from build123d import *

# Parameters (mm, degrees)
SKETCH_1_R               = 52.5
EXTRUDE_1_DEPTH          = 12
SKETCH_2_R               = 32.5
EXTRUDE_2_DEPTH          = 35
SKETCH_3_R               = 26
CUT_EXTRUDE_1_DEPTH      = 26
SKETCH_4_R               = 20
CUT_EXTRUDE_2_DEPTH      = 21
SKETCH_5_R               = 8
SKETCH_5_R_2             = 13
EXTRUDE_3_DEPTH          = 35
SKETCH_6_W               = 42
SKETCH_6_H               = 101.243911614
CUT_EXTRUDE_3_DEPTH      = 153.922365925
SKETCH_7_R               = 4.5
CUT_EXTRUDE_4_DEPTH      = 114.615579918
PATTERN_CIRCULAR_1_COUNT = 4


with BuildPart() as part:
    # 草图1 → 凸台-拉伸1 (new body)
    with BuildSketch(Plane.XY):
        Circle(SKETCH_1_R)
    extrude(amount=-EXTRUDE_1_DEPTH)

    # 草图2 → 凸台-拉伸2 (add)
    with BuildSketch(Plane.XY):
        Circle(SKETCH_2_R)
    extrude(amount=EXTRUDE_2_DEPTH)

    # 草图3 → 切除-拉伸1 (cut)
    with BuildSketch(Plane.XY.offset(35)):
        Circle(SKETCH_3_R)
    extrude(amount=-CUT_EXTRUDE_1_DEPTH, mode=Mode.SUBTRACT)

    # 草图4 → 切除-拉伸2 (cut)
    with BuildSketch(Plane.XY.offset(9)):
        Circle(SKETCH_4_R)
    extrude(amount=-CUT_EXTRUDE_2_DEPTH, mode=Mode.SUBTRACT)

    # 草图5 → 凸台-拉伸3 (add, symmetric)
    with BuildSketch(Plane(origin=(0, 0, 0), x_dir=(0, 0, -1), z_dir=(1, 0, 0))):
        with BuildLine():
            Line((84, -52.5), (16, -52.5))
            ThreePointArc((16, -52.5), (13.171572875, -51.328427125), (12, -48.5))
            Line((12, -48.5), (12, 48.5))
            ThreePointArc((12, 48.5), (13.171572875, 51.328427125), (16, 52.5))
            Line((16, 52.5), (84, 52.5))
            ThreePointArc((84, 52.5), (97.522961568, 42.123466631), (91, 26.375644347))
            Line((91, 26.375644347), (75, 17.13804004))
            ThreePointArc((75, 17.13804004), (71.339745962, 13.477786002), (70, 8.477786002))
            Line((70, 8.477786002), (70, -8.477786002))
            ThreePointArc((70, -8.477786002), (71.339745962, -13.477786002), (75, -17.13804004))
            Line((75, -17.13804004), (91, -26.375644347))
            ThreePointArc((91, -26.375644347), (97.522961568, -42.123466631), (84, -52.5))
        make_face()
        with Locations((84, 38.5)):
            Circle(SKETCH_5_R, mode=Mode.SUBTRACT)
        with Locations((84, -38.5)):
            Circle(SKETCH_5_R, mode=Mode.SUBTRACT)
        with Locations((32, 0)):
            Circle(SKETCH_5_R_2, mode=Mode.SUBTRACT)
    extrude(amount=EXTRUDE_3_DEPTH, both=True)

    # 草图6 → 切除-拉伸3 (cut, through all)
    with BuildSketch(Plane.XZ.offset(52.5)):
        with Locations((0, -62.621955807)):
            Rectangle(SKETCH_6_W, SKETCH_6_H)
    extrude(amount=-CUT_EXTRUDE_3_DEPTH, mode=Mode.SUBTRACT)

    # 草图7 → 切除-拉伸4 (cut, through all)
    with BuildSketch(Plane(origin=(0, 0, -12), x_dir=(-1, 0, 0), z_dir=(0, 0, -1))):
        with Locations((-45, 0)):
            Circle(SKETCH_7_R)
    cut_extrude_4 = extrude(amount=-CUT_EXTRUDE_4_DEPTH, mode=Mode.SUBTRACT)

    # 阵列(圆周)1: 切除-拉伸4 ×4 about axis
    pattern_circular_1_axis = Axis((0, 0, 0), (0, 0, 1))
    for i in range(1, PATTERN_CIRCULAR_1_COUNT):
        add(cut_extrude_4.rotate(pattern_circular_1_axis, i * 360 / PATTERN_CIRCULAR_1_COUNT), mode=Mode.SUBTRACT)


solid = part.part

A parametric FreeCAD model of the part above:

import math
import FreeCAD as App
import Part
import Sketcher

V = App.Vector
Q = App.Units.Quantity

doc = App.newDocument("Part")
params = doc.addObject("Spreadsheet::Sheet", "Params")
for row, (alias, value) in enumerate([
    ("sketch1_diameter", "105 mm"),
    ("pad1_length", "12 mm"),
    ("sketch2_diameter", "65 mm"),
    ("pad2_length", "35 mm"),
    ("sketch3_diameter", "52 mm"),
    ("pocket1_length", "26 mm"),
    ("sketch4_diameter", "40 mm"),
    ("pocket2_length", "21 mm"),
    ("sketch5_diameter", "16 mm"),
    ("sketch5_diameter2", "26 mm"),
    ("sketch5_radius", "14 mm"),
    ("sketch5_radius2", "10 mm"),
    ("sketch5_radius3", "4 mm"),
    ("pad3_length", "70 mm"),
    ("sketch6_width", "42 mm"),
    ("sketch7_diameter", "9 mm"),
], start=1):
    params.set(f"A{row}", alias)
    params.set(f"B{row}", "=" + value)
    params.setAlias(f"B{row}", alias)

body = doc.addObject("PartDesign::Body", "Body")

# Sketch on XY plane
sketch1 = body.newObject("Sketcher::SketchObject", "Sketch")
sketch1.AttachmentSupport = (doc.getObject("XY_Plane"), [""])
sketch1.MapMode = "FlatFace"
sketch1.addGeometry(Part.Circle(V(0, 0, 0), V(0, 0, 1), 52.5), False)
sketch1.addConstraint([
    Sketcher.Constraint("Coincident", 0, 3, -1, 1),
    Sketcher.Constraint("Diameter", 0, Q("105 mm")),
])
sketch1.setExpression("Constraints[1]", "Params.sketch1_diameter")
pad1 = body.newObject("PartDesign::Pad", "Pad")
pad1.Profile = sketch1
pad1.setExpression("Length", "Params.pad1_length")
pad1.Reversed = True

# Sketch on XY plane
sketch2 = body.newObject("Sketcher::SketchObject", "Sketch001")
sketch2.AttachmentSupport = (doc.getObject("XY_Plane"), [""])
sketch2.MapMode = "FlatFace"
sketch2.addGeometry(Part.Circle(V(0, 0, 0), V(0, 0, 1), 32.5), False)
sketch2.addConstraint([
    Sketcher.Constraint("Coincident", 0, 3, -1, 1),
    Sketcher.Constraint("Diameter", 0, Q("65 mm")),
])
sketch2.setExpression("Constraints[1]", "Params.sketch2_diameter")
pad2 = body.newObject("PartDesign::Pad", "Pad001")
pad2.Profile = sketch2
pad2.setExpression("Length", "Params.pad2_length")

# Sketch on XY plane
sketch3 = body.newObject("Sketcher::SketchObject", "Sketch002")
sketch3.AttachmentSupport = (doc.getObject("XY_Plane"), [""])
sketch3.MapMode = "FlatFace"
sketch3.AttachmentOffset = App.Placement(V(0, 0, 35), App.Rotation())
sketch3.addGeometry(Part.Circle(V(0, 0, 0), V(0, 0, 1), 26), False)
sketch3.addConstraint([
    Sketcher.Constraint("Coincident", 0, 3, -1, 1),
    Sketcher.Constraint("Diameter", 0, Q("52 mm")),
])
sketch3.setExpression("Constraints[1]", "Params.sketch3_diameter")
pocket1 = body.newObject("PartDesign::Pocket", "Pocket")
pocket1.Profile = sketch3
pocket1.setExpression("Length", "Params.pocket1_length")

# Sketch on XY plane
sketch4 = body.newObject("Sketcher::SketchObject", "Sketch003")
sketch4.AttachmentSupport = (doc.getObject("XY_Plane"), [""])
sketch4.MapMode = "FlatFace"
sketch4.AttachmentOffset = App.Placement(V(0, 0, 9), App.Rotation())
sketch4.addGeometry(Part.Circle(V(0, 0, 0), V(0, 0, 1), 20), False)
sketch4.addConstraint([
    Sketcher.Constraint("Coincident", 0, 3, -1, 1),
    Sketcher.Constraint("Diameter", 0, Q("40 mm")),
])
sketch4.setExpression("Constraints[1]", "Params.sketch4_diameter")
pocket2 = body.newObject("PartDesign::Pocket", "Pocket001")
pocket2.Profile = sketch4
pocket2.setExpression("Length", "Params.pocket2_length")

# Sketch on YZ plane
sketch5 = body.newObject("Sketcher::SketchObject", "Sketch004")
sketch5.AttachmentSupport = (doc.getObject("YZ_Plane"), [""])
sketch5.MapMode = "FlatFace"
sketch5.addGeometry([
    Part.LineSegment(V(-52.5, -16, 0), V(-52.5, -84, 0)),  # 0
    Part.ArcOfCircle(Part.Circle(V(-38.5, -84, 0), V(0, 0, 1), 14), math.radians(180), math.radians(330)),  # 1
    Part.LineSegment(V(-26.375644, -91, 0), V(-17.13804, -75, 0)),  # 2
    Part.ArcOfCircle(Part.Circle(V(-8.477786, -80, 0), V(0, 0, 1), 10), math.radians(90), math.radians(150)),  # 3
    Part.LineSegment(V(-8.477786, -70, 0), V(8.477786, -70, 0)),  # 4
    Part.ArcOfCircle(Part.Circle(V(8.477786, -80, 0), V(0, 0, 1), 10), math.radians(30), math.radians(90)),  # 5
    Part.LineSegment(V(17.13804, -75, 0), V(26.375644, -91, 0)),  # 6
    Part.ArcOfCircle(Part.Circle(V(38.5, -84, 0), V(0, 0, 1), 14), math.radians(-150), math.radians(0)),  # 7
    Part.LineSegment(V(52.5, -84, 0), V(52.5, -16, 0)),  # 8
    Part.ArcOfCircle(Part.Circle(V(48.5, -16, 0), V(0, 0, 1), 4), math.radians(0), math.radians(90)),  # 9
    Part.LineSegment(V(48.5, -12, 0), V(-48.5, -12, 0)),  # 10
    Part.ArcOfCircle(Part.Circle(V(-48.5, -16, 0), V(0, 0, 1), 4), math.radians(90), math.radians(180)),  # 11
    Part.Circle(V(-38.5, -84, 0), V(0, 0, 1), 8),  # 12
    Part.Circle(V(38.5, -84, 0), V(0, 0, 1), 8),  # 13
    Part.Circle(V(0, -32, 0), V(0, 0, 1), 13),  # 14
], False)
sketch5.addConstraint([
    Sketcher.Constraint("Tangent", 0, 2, 1, 1),
    Sketcher.Constraint("Tangent", 1, 2, 2, 1),
    Sketcher.Constraint("Tangent", 2, 2, 3, 2),
    Sketcher.Constraint("Tangent", 3, 1, 4, 1),
    Sketcher.Constraint("Tangent", 4, 2, 5, 2),
    Sketcher.Constraint("Tangent", 5, 1, 6, 1),
    Sketcher.Constraint("Tangent", 6, 2, 7, 1),
    Sketcher.Constraint("Tangent", 7, 2, 8, 1),
    Sketcher.Constraint("Tangent", 8, 2, 9, 1),
    Sketcher.Constraint("Tangent", 9, 2, 10, 1),
    Sketcher.Constraint("Tangent", 10, 2, 11, 1),
    Sketcher.Constraint("Tangent", 11, 2, 0, 1),
    Sketcher.Constraint("Vertical", 0),
    Sketcher.Constraint("Horizontal", 4),
    Sketcher.Constraint("Vertical", 8),
    Sketcher.Constraint("Horizontal", 10),
    Sketcher.Constraint("Coincident", 12, 3, 1, 3),
    Sketcher.Constraint("Coincident", 13, 3, 7, 3),
    Sketcher.Constraint("Equal", 3, 5),
    Sketcher.Constraint("Equal", 1, 7),
    Sketcher.Constraint("Equal", 9, 11),
    Sketcher.Constraint("Equal", 12, 13),
    Sketcher.Constraint("Symmetric", 1, 3, 7, 3, -2),
    Sketcher.Constraint("PointOnObject", 14, 3, -2),
    Sketcher.Constraint("Horizontal", 2, 2, 5, 1),
    Sketcher.Constraint("Diameter", 12, Q("16 mm")),
    Sketcher.Constraint("Diameter", 14, Q("26 mm")),
    Sketcher.Constraint("Radius", 1, Q("14 mm")),
    Sketcher.Constraint("Radius", 3, Q("10 mm")),
    Sketcher.Constraint("Radius", 9, Q("4 mm")),
    Sketcher.Constraint("DistanceX", 10, 2, 10, 1, Q("97 mm")),
    Sketcher.Constraint("DistanceY", 0, 2, 0, 1, Q("68 mm")),
    Sketcher.Constraint("Angle", 2, Q("60 deg")),
    Sketcher.Constraint("DistanceY", 1, 3, -1, 1, Q("84 mm")),
    Sketcher.Constraint("DistanceY", 3, 3, -1, 1, Q("80 mm")),
    Sketcher.Constraint("DistanceY", 14, 3, -1, 1, Q("32 mm")),
])
sketch5.setExpression("Constraints[25]", "Params.sketch5_diameter")
sketch5.setExpression("Constraints[26]", "Params.sketch5_diameter2")
sketch5.setExpression("Constraints[27]", "Params.sketch5_radius")
sketch5.setExpression("Constraints[28]", "Params.sketch5_radius2")
sketch5.setExpression("Constraints[29]", "Params.sketch5_radius3")
pad3 = body.newObject("PartDesign::Pad", "Pad002")
pad3.Profile = sketch5
pad3.setExpression("Length", "Params.pad3_length")
pad3.Midplane = True

# Sketch on XZ plane
sketch6 = body.newObject("Sketcher::SketchObject", "Sketch005")
sketch6.AttachmentSupport = (doc.getObject("XZ_Plane"), [""])
sketch6.MapMode = "FlatFace"
sketch6.AttachmentOffset = App.Placement(V(0, 0, 52.5), App.Rotation())
sketch6.addGeometry([
    Part.LineSegment(V(-21, -12, 0), V(-21, -113.243912, 0)),
    Part.LineSegment(V(-21, -113.243912, 0), V(21, -113.243912, 0)),
    Part.LineSegment(V(21, -113.243912, 0), V(21, -12, 0)),
    Part.LineSegment(V(21, -12, 0), V(-21, -12, 0)),
], False)
sketch6.addConstraint([
    Sketcher.Constraint("Coincident", 0, 2, 1, 1),
    Sketcher.Constraint("Coincident", 1, 2, 2, 1),
    Sketcher.Constraint("Coincident", 2, 2, 3, 1),
    Sketcher.Constraint("Coincident", 3, 2, 0, 1),
    Sketcher.Constraint("Vertical", 0),
    Sketcher.Constraint("Horizontal", 1),
    Sketcher.Constraint("Vertical", 2),
    Sketcher.Constraint("Horizontal", 3),
    Sketcher.Constraint("DistanceX", 1, 1, 1, 2, Q("42 mm")),
    Sketcher.Constraint("DistanceX", 0, 2, -1, 1, Q("21 mm")),
    Sketcher.Constraint("DistanceY", 2, 2, -1, 1, Q("12 mm")),
    Sketcher.Constraint("DistanceY", 0, 2, 0, 1, Q("101.243912 mm")),
])
sketch6.setExpression("Constraints[8]", "Params.sketch6_width")
pocket3 = body.newObject("PartDesign::Pocket", "Pocket002")
pocket3.Profile = sketch6
pocket3.Type = "ThroughAll"

# Sketch on XY plane
sketch7 = body.newObject("Sketcher::SketchObject", "Sketch006")
sketch7.AttachmentSupport = (doc.getObject("XY_Plane"), [""])
sketch7.MapMode = "FlatFace"
sketch7.AttachmentOffset = App.Placement(V(0, 0, -12), App.Rotation())
sketch7.addGeometry(Part.Circle(V(45, 0, 0), V(0, 0, 1), 4.5), False)
sketch7.addConstraint([
    Sketcher.Constraint("PointOnObject", 0, 3, -1),
    Sketcher.Constraint("Diameter", 0, Q("9 mm")),
    Sketcher.Constraint("DistanceX", -1, 1, 0, 3, Q("45 mm")),
])
sketch7.setExpression("Constraints[1]", "Params.sketch7_diameter")
pocket4 = body.newObject("PartDesign::Pocket", "Pocket003")
pocket4.Profile = sketch7
pocket4.Type = "ThroughAll"
pocket4.Reversed = True
doc.recompute()

polarpattern = body.newObject("PartDesign::PolarPattern", "PolarPattern")
polarpattern.Originals = [pocket4]
polarpattern.Axis = (doc.getObject("Z_Axis"), [""])
polarpattern.Angle = 360
polarpattern.Occurrences = 4
body.Tip = polarpattern

doc.recompute()
